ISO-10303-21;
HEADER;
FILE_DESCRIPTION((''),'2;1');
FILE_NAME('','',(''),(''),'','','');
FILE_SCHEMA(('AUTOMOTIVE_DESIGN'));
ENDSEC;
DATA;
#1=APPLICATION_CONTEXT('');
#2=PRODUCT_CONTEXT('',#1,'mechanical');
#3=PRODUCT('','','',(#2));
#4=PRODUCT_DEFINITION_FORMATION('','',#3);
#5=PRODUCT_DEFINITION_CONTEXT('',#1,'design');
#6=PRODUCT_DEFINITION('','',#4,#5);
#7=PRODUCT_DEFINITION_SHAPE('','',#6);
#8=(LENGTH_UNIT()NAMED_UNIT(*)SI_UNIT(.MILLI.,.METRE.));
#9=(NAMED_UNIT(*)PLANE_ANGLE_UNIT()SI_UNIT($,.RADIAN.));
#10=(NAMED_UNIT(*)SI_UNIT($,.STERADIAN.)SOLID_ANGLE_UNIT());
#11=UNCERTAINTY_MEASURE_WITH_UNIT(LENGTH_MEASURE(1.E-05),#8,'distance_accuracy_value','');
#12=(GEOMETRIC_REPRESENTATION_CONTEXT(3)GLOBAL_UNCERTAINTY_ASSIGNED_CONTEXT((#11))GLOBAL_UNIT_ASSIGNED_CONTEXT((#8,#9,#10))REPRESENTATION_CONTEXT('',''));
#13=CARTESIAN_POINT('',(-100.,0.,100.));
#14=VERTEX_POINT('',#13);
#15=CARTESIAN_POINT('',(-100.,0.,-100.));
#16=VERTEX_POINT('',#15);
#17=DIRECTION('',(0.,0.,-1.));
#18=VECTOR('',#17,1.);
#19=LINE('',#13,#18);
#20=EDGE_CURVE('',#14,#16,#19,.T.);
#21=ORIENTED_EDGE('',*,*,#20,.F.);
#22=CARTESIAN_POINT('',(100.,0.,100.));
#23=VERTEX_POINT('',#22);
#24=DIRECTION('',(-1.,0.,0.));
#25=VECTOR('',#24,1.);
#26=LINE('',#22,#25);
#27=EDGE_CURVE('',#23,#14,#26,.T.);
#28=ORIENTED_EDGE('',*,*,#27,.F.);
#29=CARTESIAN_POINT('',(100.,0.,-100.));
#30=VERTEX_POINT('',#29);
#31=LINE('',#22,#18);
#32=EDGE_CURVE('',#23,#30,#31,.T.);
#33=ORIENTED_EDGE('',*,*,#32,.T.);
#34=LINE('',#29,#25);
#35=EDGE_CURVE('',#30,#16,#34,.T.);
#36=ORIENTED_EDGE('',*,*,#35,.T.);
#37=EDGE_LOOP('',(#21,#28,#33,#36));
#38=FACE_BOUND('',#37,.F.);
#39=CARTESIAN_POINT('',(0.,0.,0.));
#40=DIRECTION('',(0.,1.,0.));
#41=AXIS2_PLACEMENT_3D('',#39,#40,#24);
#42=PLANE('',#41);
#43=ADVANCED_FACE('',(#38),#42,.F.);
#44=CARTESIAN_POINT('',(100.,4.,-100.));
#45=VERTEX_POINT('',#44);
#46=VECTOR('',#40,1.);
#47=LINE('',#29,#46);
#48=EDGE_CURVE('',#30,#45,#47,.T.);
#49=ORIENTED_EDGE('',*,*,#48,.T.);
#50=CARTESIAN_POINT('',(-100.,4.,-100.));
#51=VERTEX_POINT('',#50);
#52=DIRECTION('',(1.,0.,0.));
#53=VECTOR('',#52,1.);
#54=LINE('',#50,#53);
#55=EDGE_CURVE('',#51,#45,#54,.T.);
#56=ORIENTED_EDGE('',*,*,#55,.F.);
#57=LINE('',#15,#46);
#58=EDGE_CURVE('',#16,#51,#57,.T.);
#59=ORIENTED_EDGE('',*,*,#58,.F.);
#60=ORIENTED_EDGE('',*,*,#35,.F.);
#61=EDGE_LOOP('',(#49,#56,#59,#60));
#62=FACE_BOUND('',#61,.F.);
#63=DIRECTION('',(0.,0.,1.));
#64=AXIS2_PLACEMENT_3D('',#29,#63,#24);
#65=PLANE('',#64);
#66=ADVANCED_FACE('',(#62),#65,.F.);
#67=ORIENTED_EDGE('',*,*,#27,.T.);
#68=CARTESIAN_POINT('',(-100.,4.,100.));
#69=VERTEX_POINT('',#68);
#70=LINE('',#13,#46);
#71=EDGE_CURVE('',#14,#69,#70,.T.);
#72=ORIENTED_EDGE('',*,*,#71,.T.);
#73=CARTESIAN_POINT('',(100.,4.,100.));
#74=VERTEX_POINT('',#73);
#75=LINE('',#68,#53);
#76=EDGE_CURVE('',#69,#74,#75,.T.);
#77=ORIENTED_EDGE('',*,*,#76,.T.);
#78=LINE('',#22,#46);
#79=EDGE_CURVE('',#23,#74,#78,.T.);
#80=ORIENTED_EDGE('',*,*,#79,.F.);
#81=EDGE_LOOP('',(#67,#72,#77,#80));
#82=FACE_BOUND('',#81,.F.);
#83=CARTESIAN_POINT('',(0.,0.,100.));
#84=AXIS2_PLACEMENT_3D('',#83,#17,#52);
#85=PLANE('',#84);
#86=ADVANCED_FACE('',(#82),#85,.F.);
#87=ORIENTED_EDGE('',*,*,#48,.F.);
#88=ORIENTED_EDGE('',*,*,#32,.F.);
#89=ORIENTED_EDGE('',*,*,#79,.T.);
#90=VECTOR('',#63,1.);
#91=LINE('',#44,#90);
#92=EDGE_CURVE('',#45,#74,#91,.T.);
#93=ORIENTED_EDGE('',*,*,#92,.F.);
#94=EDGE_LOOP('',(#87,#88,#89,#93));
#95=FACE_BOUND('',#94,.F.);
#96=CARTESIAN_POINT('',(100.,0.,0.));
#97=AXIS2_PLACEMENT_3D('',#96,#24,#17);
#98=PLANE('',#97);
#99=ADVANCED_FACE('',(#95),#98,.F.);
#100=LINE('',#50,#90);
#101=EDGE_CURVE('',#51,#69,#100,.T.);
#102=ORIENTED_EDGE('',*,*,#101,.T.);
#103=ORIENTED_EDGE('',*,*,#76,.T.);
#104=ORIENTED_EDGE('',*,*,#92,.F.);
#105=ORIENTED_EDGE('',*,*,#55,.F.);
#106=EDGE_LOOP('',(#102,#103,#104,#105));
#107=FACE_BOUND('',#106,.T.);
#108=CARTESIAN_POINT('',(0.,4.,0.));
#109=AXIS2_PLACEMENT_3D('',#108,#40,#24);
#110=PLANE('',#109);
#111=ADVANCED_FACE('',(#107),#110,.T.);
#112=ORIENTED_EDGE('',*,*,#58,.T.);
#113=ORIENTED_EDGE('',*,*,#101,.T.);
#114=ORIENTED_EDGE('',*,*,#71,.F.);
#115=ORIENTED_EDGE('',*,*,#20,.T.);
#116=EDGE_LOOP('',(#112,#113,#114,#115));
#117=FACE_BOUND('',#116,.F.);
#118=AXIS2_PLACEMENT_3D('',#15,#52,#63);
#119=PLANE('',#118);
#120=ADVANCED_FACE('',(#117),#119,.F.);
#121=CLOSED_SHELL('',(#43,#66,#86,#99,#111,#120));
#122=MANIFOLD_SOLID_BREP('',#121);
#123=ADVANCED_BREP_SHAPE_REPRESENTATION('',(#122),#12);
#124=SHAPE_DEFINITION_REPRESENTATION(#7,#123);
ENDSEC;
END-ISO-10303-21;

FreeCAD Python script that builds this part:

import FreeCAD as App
import Part
import Sketcher

V = App.Vector
Q = App.Units.Quantity


def add_polygon(sketch, points):
    """Adds a closed chain of lines whose ends are joined by coincident constraints."""
    first, n = sketch.GeometryCount, len(points)
    for a, b in zip(points, points[1:] + points[:1]):
        sketch.addGeometry(Part.LineSegment(App.Vector(*a, 0), App.Vector(*b, 0)), False)
    for i in range(n):
        sketch.addConstraint(Sketcher.Constraint("Coincident", first + i, 2, first + (i + 1) % n, 1))

doc = App.newDocument("Part")
body = doc.addObject("PartDesign::Body", "Body")

sketch1 = body.newObject("Sketcher::SketchObject", "Sketch")
sketch1.AttachmentSupport = (doc.getObject("XZ_Plane"), [""])
sketch1.MapMode = "FlatFace"
add_polygon(sketch1, [(100, -100), (-100, -100), (-100, 100), (100, 100)])
sketch1.addConstraint([
    Sketcher.Constraint("Horizontal", 0),
    Sketcher.Constraint("Vertical", 1),
    Sketcher.Constraint("Horizontal", 2),
    Sketcher.Constraint("Vertical", 3),
    Sketcher.Constraint("Symmetric", 0, 2, 2, 2, -1, 1),
    Sketcher.Constraint("Equal", 2, 1),
    Sketcher.Constraint("DistanceX", 0, 2, 0, 1, Q("200 mm")),
])
pad1 = body.newObject("PartDesign::Pad", "Pad")
pad1.Profile = sketch1
pad1.Length = 4
pad1.Reversed = True

doc.recompute()
